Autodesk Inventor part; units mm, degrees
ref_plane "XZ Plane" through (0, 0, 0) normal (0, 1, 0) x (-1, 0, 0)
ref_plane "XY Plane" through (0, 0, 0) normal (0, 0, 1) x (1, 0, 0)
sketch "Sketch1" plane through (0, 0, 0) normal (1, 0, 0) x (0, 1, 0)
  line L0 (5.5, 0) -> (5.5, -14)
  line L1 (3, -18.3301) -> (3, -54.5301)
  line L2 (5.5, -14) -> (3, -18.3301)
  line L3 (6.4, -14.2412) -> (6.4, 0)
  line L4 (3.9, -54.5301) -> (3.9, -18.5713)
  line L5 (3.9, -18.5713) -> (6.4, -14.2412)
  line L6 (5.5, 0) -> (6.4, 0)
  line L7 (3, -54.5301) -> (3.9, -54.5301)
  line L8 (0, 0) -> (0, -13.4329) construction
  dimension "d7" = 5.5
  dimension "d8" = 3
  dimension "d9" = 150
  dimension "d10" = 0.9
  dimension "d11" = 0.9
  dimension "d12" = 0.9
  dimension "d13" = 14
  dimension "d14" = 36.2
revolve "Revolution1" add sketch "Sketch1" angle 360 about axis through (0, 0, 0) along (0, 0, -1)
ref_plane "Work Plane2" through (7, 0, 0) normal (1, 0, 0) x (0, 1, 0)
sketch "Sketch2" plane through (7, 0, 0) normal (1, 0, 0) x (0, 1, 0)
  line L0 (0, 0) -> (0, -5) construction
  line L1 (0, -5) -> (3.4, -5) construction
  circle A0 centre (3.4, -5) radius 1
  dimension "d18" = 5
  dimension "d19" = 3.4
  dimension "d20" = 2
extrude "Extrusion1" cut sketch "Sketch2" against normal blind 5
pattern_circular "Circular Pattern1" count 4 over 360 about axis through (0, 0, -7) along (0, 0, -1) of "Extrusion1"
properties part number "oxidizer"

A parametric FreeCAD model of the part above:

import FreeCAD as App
import Part
import Sketcher

V = App.Vector
Q = App.Units.Quantity

doc = App.newDocument("Part")
body = doc.addObject("PartDesign::Body", "Body")

sketch1 = doc.addObject("Sketcher::SketchObject", "Sketch")
body.addObject(sketch1)
sketch1.AttachmentSupport = (doc.YZ_Plane, [""])
sketch1.MapMode = "FlatFace"
sketch1.addGeometry([
    Part.LineSegment(V(6.4, 0, 0), V(5.5, 0, 0)),
    Part.LineSegment(V(5.5, 0, 0), V(5.5, -14, 0)),
    Part.LineSegment(V(5.5, -14, 0), V(3, -18.3301, 0)),
    Part.LineSegment(V(3, -18.3301, 0), V(3, -54.5301, 0)),
    Part.LineSegment(V(3, -54.5301, 0), V(3.9, -54.5301, 0)),
    Part.LineSegment(V(3.9, -54.5301, 0), V(3.9, -18.5713, 0)),
    Part.LineSegment(V(3.9, -18.5713, 0), V(6.4, -14.2412, 0)),
    Part.LineSegment(V(6.4, -14.2412, 0), V(6.4, 0, 0)),
], False)
sketch1.addConstraint([
    Sketcher.Constraint("Coincident", 0, 2, 1, 1),
    Sketcher.Constraint("Coincident", 1, 2, 2, 1),
    Sketcher.Constraint("Coincident", 2, 2, 3, 1),
    Sketcher.Constraint("Coincident", 3, 2, 4, 1),
    Sketcher.Constraint("Coincident", 4, 2, 5, 1),
    Sketcher.Constraint("Coincident", 5, 2, 6, 1),
    Sketcher.Constraint("Coincident", 6, 2, 7, 1),
    Sketcher.Constraint("Coincident", 7, 2, 0, 1),
    Sketcher.Constraint("Horizontal", 0),
    Sketcher.Constraint("Vertical", 1),
    Sketcher.Constraint("Vertical", 3),
    Sketcher.Constraint("Horizontal", 4),
    Sketcher.Constraint("Vertical", 5),
    Sketcher.Constraint("Vertical", 7),
    Sketcher.Constraint("PointOnObject", 0, 2, -1),
    Sketcher.Constraint("Parallel", 2, 6),
    Sketcher.Constraint("Equal", 0, 4),
    Sketcher.Constraint("DistanceY", 1, 2, 1, 1, Q("14 mm")),
    Sketcher.Constraint("DistanceX", 0, 2, 0, 1, Q("0.9 mm")),
    Sketcher.Constraint("DistanceY", 3, 2, 3, 1, Q("36.2 mm")),
    Sketcher.Constraint("DistanceX", -1, 1, 2, 2, Q("3 mm")),
    Sketcher.Constraint("DistanceX", -1, 1, 0, 2, Q("5.5 mm")),
    Sketcher.Constraint("Angle", 2, Q("-120.0002 deg")),
    Sketcher.Constraint("DistanceY", 5, 1, 5, 2, Q("35.9588 mm")),
])
revolution = doc.addObject("PartDesign::Revolution", "Revolution")
body.addObject(revolution)
revolution.Profile = sketch1
revolution.ReferenceAxis = (sketch1, ["V_Axis"])
revolution.Angle = 360

sketch2 = doc.addObject("Sketcher::SketchObject", "Sketch001")
body.addObject(sketch2)
sketch2.AttachmentSupport = (doc.YZ_Plane, [""])
sketch2.MapMode = "FlatFace"
sketch2.AttachmentOffset = App.Placement(V(0, 0, 7), App.Rotation())
sketch2.addGeometry(Part.Circle(V(3.4, -5, 0), V(0, 0, 1), 1), False)
sketch2.addConstraint([
    Sketcher.Constraint("Diameter", 0, Q("2 mm")),
    Sketcher.Constraint("DistanceY", 0, 3, -1, 1, Q("5 mm")),
    Sketcher.Constraint("DistanceX", -1, 1, 0, 3, Q("3.4 mm")),
])
pocket1 = doc.addObject("PartDesign::Pocket", "Pocket")
body.addObject(pocket1)
pocket1.Profile = sketch2
pocket1.Length = 5
doc.recompute()

polarpattern = doc.addObject("PartDesign::PolarPattern", "PolarPattern")
body.addObject(polarpattern)
polarpattern.Originals = [pocket1]
polarpattern.Axis = (doc.Z_Axis, [""])
polarpattern.Angle = 360
polarpattern.Occurrences = 4
body.Tip = polarpattern

doc.recompute()
